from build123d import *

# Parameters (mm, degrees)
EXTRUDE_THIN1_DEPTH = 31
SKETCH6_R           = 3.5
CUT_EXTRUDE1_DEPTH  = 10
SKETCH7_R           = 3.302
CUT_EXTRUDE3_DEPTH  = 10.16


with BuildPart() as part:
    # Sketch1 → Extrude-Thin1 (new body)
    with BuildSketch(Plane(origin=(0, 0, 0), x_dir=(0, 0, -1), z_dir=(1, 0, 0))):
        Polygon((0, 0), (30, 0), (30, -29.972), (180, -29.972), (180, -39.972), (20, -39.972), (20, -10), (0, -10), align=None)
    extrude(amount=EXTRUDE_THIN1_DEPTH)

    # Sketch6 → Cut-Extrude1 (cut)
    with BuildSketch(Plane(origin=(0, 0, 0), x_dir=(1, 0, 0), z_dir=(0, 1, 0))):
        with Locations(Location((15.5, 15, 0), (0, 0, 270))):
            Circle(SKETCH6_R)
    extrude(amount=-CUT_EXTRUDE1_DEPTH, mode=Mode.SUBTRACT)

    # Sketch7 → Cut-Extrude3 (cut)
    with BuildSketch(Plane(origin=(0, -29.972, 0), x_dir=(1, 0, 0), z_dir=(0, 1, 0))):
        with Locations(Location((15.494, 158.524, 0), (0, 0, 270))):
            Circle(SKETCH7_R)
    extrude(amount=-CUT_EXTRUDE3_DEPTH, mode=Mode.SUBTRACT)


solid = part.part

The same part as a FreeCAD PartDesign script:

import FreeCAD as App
import Part
import Sketcher


def add_polygon(sketch, points):
    """Adds a closed chain of lines whose ends are joined by coincident constraints."""
    first, n = sketch.GeometryCount, len(points)
    for a, b in zip(points, points[1:] + points[:1]):
        sketch.addGeometry(Part.LineSegment(App.Vector(*a, 0), App.Vector(*b, 0)), False)
    for i in range(n):
        sketch.addConstraint(Sketcher.Constraint("Coincident", first + i, 2, first + (i + 1) % n, 1))

doc = App.newDocument("Part")
body = doc.addObject("PartDesign::Body", "Body")

sketch1 = body.newObject("Sketcher::SketchObject", "Sketch")
sketch1.AttachmentSupport = (doc.getObject("YZ_Plane"), [""])
sketch1.MapMode = "FlatFace"
add_polygon(sketch1, [(0, -30), (0, 0), (-10, 0), (-10, -20), (-40, -20), (-40, -180), (-30, -180), (-30, -30)])
sketch1.addConstraint(Sketcher.Constraint("Vertical", 0))
sketch1.addConstraint(Sketcher.Constraint("Horizontal", 1))
sketch1.addConstraint(Sketcher.Constraint("Vertical", 2))
sketch1.addConstraint(Sketcher.Constraint("Horizontal", 3))
sketch1.addConstraint(Sketcher.Constraint("Vertical", 4))
sketch1.addConstraint(Sketcher.Constraint("Horizontal", 5))
sketch1.addConstraint(Sketcher.Constraint("Vertical", 6))
sketch1.addConstraint(Sketcher.Constraint("Horizontal", 7))
sketch1.addConstraint(Sketcher.Constraint("Coincident", 0, 2, -1, 1))
sketch1.addConstraint(Sketcher.Constraint("Equal", 1, 5))
sketch1.addConstraint(Sketcher.Constraint("DistanceX", 1, 2, 1, 1, 10.0))
sketch1.addConstraint(Sketcher.Constraint("DistanceY", 0, 1, 0, 2, 30.0))
sketch1.addConstraint(Sketcher.Constraint("DistanceY", 2, 2, 2, 1, 20.0))
sketch1.addConstraint(Sketcher.Constraint("DistanceY", 4, 2, 4, 1, 160.0))
sketch1.addConstraint(Sketcher.Constraint("DistanceX", 3, 2, 3, 1, 29.972))
pad1 = body.newObject("PartDesign::Pad", "Pad")
pad1.Profile = sketch1
pad1.Length = 31

sketch2 = body.newObject("Sketcher::SketchObject", "Sketch001")
sketch2.AttachmentSupport = (doc.getObject("XZ_Plane"), [""])
sketch2.MapMode = "FlatFace"
sketch2.addGeometry(Part.Circle(App.Vector(15.5, -15, 0), App.Vector(0, 0, 1), 3.5), False)
sketch2.addConstraint(Sketcher.Constraint("Diameter", 0, 7.0))
sketch2.addConstraint(Sketcher.Constraint("DistanceY", 0, 3, -1, 1, 15.0))
sketch2.addConstraint(Sketcher.Constraint("DistanceX", -1, 1, 0, 3, 15.5))
pocket1 = body.newObject("PartDesign::Pocket", "Pocket")
pocket1.Profile = sketch2
pocket1.Length = 10
pocket1.Reversed = True

sketch3 = body.newObject("Sketcher::SketchObject", "Sketch002")
sketch3.AttachmentSupport = (doc.getObject("XZ_Plane"), [""])
sketch3.MapMode = "FlatFace"
sketch3.AttachmentOffset = App.Placement(App.Vector(0, 0, 29.972), App.Rotation())
sketch3.addGeometry(Part.Circle(App.Vector(15.5, -158.5, 0), App.Vector(0, 0, 1), 3.3), False)
sketch3.addConstraint(Sketcher.Constraint("Diameter", 0, 6.604))
sketch3.addConstraint(Sketcher.Constraint("DistanceX", -1, 1, 0, 3, 15.494))
sketch3.addConstraint(Sketcher.Constraint("DistanceY", 0, 3, -1, 1, 158.524))
pocket2 = body.newObject("PartDesign::Pocket", "Pocket001")
pocket2.Profile = sketch3
pocket2.Length = 10.16
pocket2.Reversed = True

doc.recompute()
